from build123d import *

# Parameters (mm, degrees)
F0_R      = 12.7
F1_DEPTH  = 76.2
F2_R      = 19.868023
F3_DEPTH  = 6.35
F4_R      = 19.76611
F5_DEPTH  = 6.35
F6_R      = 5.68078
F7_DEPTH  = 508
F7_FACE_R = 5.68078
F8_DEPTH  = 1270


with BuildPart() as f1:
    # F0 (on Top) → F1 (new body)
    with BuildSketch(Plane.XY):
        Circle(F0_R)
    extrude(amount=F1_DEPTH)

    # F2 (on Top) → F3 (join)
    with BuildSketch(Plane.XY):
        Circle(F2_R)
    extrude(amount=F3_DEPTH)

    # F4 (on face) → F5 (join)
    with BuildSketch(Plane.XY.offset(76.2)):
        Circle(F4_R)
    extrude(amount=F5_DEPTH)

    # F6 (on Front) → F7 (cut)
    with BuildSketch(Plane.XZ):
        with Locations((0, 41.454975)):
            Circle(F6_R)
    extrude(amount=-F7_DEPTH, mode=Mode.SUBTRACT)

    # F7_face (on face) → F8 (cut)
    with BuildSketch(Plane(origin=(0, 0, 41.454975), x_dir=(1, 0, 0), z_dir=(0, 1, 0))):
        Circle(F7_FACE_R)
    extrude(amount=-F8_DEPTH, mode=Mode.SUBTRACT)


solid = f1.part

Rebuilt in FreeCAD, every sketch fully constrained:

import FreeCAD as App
import Part
import Sketcher

V = App.Vector
Q = App.Units.Quantity

doc = App.newDocument("Part")
params = doc.addObject("Spreadsheet::Sheet", "Params")
for row, (alias, value) in enumerate([
    ("sketch1_diameter", "1 in"),
    ("pad1_length", "3 in"),
    ("pad2_length", "0.25 in"),
    ("pad3_length", "0.25 in"),
    ("pocket1_length", "20 in"),
    ("pocket2_length", "50 in"),
], start=1):
    params.set(f"A{row}", alias)
    params.set(f"B{row}", "=" + value)
    params.setAlias(f"B{row}", alias)

body = doc.addObject("PartDesign::Body", "Body")

# Sketch on XY plane
sketch1 = doc.addObject("Sketcher::SketchObject", "Sketch")
body.addObject(sketch1)
sketch1.AttachmentSupport = (doc.XY_Plane, [""])
sketch1.MapMode = "FlatFace"
sketch1.addGeometry(Part.Circle(V(0, 0, 0), V(0, 0, 1), 12.7), False)
sketch1.addConstraint([
    Sketcher.Constraint("Coincident", 0, 3, -1, 1),
    Sketcher.Constraint("Diameter", 0, Q("1 in")),
])
sketch1.setExpression("Constraints[1]", "Params.sketch1_diameter")
pad1 = doc.addObject("PartDesign::Pad", "Pad")
body.addObject(pad1)
pad1.Profile = sketch1
pad1.setExpression("Length", "Params.pad1_length")

# Sketch on XY plane
sketch2 = doc.addObject("Sketcher::SketchObject", "Sketch001")
body.addObject(sketch2)
sketch2.AttachmentSupport = (doc.XY_Plane, [""])
sketch2.MapMode = "FlatFace"
sketch2.addGeometry(Part.Circle(V(0, 0, 0), V(0, 0, 1), 19.868023), False)
sketch2.addConstraint([
    Sketcher.Constraint("Coincident", 0, 3, -1, 1),
    Sketcher.Constraint("Diameter", 0, Q("39.736046 mm")),
])
pad2 = doc.addObject("PartDesign::Pad", "Pad001")
body.addObject(pad2)
pad2.Profile = sketch2
pad2.setExpression("Length", "Params.pad2_length")

# Sketch on XY plane
sketch3 = doc.addObject("Sketcher::SketchObject", "Sketch002")
body.addObject(sketch3)
sketch3.AttachmentSupport = (doc.XY_Plane, [""])
sketch3.MapMode = "FlatFace"
sketch3.AttachmentOffset = App.Placement(V(0, 0, 3 * 25.4), App.Rotation())
sketch3.addGeometry(Part.Circle(V(0, 0, 0), V(0, 0, 1), 19.76611), False)
sketch3.addConstraint([
    Sketcher.Constraint("Coincident", 0, 3, -1, 1),
    Sketcher.Constraint("Diameter", 0, Q("39.53222 mm")),
])
pad3 = doc.addObject("PartDesign::Pad", "Pad002")
body.addObject(pad3)
pad3.Profile = sketch3
pad3.setExpression("Length", "Params.pad3_length")

# Sketch on XZ plane
sketch4 = doc.addObject("Sketcher::SketchObject", "Sketch003")
body.addObject(sketch4)
sketch4.AttachmentSupport = (doc.XZ_Plane, [""])
sketch4.MapMode = "FlatFace"
sketch4.addGeometry(Part.Circle(V(0, 41.454975, 0), V(0, 0, 1), 5.68078), False)
sketch4.addConstraint([
    Sketcher.Constraint("PointOnObject", 0, 3, -2),
    Sketcher.Constraint("Diameter", 0, Q("11.36156 mm")),
    Sketcher.Constraint("DistanceY", -1, 1, 0, 3, Q("41.454975 mm")),
])
pocket1 = doc.addObject("PartDesign::Pocket", "Pocket")
body.addObject(pocket1)
pocket1.Profile = sketch4
pocket1.setExpression("Length", "Params.pocket1_length")

# Sketch on XZ plane
sketch5 = doc.addObject("Sketcher::SketchObject", "Sketch004")
body.addObject(sketch5)
sketch5.AttachmentSupport = (doc.XZ_Plane, [""])
sketch5.MapMode = "FlatFace"
sketch5.addGeometry(Part.Circle(V(0, 41.454975, 0), V(0, 0, 1), 5.68078), False)
sketch5.addConstraint([
    Sketcher.Constraint("PointOnObject", 0, 3, -2),
    Sketcher.Constraint("Diameter", 0, Q("11.36156 mm")),
    Sketcher.Constraint("DistanceY", -1, 1, 0, 3, Q("41.454975 mm")),
])
pocket2 = doc.addObject("PartDesign::Pocket", "Pocket001")
body.addObject(pocket2)
pocket2.Profile = sketch5
pocket2.setExpression("Length", "Params.pocket2_length")
pocket2.Reversed = True

doc.recompute()
